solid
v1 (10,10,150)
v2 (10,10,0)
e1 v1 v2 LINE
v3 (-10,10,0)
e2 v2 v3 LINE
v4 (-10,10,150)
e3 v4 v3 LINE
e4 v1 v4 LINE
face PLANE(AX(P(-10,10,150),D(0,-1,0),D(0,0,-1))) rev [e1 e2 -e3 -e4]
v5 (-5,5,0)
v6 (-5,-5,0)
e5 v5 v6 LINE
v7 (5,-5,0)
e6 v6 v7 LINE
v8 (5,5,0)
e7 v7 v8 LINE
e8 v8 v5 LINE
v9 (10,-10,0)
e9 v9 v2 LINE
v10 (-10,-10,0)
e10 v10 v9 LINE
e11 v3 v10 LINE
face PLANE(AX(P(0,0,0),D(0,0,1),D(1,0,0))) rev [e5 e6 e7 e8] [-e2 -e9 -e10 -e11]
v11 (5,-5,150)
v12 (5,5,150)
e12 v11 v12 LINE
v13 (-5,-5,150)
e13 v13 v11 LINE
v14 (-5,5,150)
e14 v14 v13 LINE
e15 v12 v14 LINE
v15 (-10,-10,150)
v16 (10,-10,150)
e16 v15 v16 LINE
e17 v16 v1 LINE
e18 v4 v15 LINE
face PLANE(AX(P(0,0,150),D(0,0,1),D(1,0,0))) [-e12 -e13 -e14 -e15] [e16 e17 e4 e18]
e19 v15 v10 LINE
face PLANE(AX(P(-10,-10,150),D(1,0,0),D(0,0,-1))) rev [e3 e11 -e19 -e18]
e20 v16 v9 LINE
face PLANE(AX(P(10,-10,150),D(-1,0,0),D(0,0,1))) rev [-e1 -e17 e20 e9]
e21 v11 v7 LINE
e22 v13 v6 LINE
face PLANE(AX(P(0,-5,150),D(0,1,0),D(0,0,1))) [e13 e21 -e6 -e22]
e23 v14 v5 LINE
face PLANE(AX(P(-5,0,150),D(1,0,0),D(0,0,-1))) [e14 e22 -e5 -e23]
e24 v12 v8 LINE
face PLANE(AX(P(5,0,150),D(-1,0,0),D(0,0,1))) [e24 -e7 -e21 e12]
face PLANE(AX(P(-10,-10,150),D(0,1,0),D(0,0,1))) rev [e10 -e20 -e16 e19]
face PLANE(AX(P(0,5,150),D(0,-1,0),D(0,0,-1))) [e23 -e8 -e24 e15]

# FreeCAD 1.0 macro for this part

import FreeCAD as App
import Part
import Sketcher

V = App.Vector

doc = App.newDocument("Part")
body = doc.addObject("PartDesign::Body", "Body")

sketch1 = body.newObject("Sketcher::SketchObject", "Sketch")
sketch1.AttachmentSupport = (doc.getObject("XY_Plane"), [""])
sketch1.MapMode = "FlatFace"
sketch1.addGeometry(Part.LineSegment(V(-10, 10, 0), V(-10, -10, 0)), False)
sketch1.addGeometry(Part.LineSegment(V(-10, -10, 0), V(10, -10, 0)), False)
sketch1.addGeometry(Part.LineSegment(V(10, -10, 0), V(10, 10, 0)), False)
sketch1.addGeometry(Part.LineSegment(V(10, 10, 0), V(-10, 10, 0)), False)
sketch1.addGeometry(Part.LineSegment(V(5, -5, 0), V(-5, -5, 0)), False)
sketch1.addGeometry(Part.LineSegment(V(-5, -5, 0), V(-5, 5, 0)), False)
sketch1.addGeometry(Part.LineSegment(V(-5, 5, 0), V(5, 5, 0)), False)
sketch1.addGeometry(Part.LineSegment(V(5, 5, 0), V(5, -5, 0)), False)
sketch1.addConstraint(Sketcher.Constraint("Coincident", 0, 2, 1, 1))
sketch1.addConstraint(Sketcher.Constraint("Coincident", 1, 2, 2, 1))
sketch1.addConstraint(Sketcher.Constraint("Coincident", 2, 2, 3, 1))
sketch1.addConstraint(Sketcher.Constraint("Coincident", 3, 2, 0, 1))
sketch1.addConstraint(Sketcher.Constraint("Coincident", 4, 2, 5, 1))
sketch1.addConstraint(Sketcher.Constraint("Coincident", 5, 2, 6, 1))
sketch1.addConstraint(Sketcher.Constraint("Coincident", 6, 2, 7, 1))
sketch1.addConstraint(Sketcher.Constraint("Coincident", 7, 2, 4, 1))
sketch1.addConstraint(Sketcher.Constraint("Vertical", 0))
sketch1.addConstraint(Sketcher.Constraint("Horizontal", 1))
sketch1.addConstraint(Sketcher.Constraint("Vertical", 2))
sketch1.addConstraint(Sketcher.Constraint("Horizontal", 3))
sketch1.addConstraint(Sketcher.Constraint("Horizontal", 4))
sketch1.addConstraint(Sketcher.Constraint("Vertical", 5))
sketch1.addConstraint(Sketcher.Constraint("Horizontal", 6))
sketch1.addConstraint(Sketcher.Constraint("Vertical", 7))
sketch1.addConstraint(Sketcher.Constraint("Symmetric", 0, 2, 2, 2, -1, 1))
sketch1.addConstraint(Sketcher.Constraint("Symmetric", 4, 2, 6, 2, -1, 1))
sketch1.addConstraint(Sketcher.Constraint("Equal", 3, 0))
sketch1.addConstraint(Sketcher.Constraint("Equal", 6, 5))
sketch1.addConstraint(Sketcher.Constraint("DistanceX", 1, 1, 1, 2, 20.0))
sketch1.addConstraint(Sketcher.Constraint("DistanceX", 4, 2, 4, 1, 10.0))
pad1 = body.newObject("PartDesign::Pad", "Pad")
pad1.Profile = sketch1
pad1.Length = 150

doc.recompute()
